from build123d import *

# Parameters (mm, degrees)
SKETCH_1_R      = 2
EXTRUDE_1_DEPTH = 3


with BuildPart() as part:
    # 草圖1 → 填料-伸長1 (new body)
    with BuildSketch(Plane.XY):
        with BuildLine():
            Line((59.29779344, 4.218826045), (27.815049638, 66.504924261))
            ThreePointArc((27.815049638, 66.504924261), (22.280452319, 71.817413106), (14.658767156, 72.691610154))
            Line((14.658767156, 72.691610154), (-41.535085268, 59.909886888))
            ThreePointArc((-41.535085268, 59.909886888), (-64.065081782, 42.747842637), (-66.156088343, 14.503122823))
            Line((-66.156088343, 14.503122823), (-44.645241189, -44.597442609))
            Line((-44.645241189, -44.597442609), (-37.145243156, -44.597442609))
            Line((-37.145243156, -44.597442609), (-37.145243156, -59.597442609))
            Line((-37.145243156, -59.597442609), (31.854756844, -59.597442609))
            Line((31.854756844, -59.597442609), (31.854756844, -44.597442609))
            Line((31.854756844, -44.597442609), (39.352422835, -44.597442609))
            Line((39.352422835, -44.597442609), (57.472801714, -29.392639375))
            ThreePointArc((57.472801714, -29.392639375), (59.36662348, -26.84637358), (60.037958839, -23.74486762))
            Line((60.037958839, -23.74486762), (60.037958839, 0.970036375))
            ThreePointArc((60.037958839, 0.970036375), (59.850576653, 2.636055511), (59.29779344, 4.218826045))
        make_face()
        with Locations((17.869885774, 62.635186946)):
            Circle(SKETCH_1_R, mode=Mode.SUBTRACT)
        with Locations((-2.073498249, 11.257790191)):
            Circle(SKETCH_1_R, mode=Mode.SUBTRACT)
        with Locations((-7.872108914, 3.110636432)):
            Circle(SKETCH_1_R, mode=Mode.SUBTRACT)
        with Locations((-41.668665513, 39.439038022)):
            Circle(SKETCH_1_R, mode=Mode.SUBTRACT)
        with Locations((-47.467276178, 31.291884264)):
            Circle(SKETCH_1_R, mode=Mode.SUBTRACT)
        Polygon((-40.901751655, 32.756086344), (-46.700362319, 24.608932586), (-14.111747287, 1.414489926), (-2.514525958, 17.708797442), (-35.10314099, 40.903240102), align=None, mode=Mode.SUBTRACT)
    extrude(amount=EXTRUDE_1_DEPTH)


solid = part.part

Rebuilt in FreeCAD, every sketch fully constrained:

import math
import FreeCAD as App
import Part
import Sketcher

V = App.Vector
Q = App.Units.Quantity


def add_polygon(sketch, points):
    """Adds a closed chain of lines whose ends are joined by coincident constraints."""
    first, n = sketch.GeometryCount, len(points)
    for a, b in zip(points, points[1:] + points[:1]):
        sketch.addGeometry(Part.LineSegment(App.Vector(*a, 0), App.Vector(*b, 0)), False)
    for i in range(n):
        sketch.addConstraint(Sketcher.Constraint("Coincident", first + i, 2, first + (i + 1) % n, 1))

doc = App.newDocument("Part")
body = doc.addObject("PartDesign::Body", "Body")

sketch1 = body.newObject("Sketcher::SketchObject", "Sketch")
sketch1.AttachmentSupport = (doc.getObject("XY_Plane"), [""])
sketch1.MapMode = "FlatFace"
sketch1.addGeometry(Part.LineSegment(V(59.297793, 4.218826, 0), V(27.81505, 66.504924, 0)), False)
sketch1.addGeometry(Part.ArcOfCircle(Part.Circle(V(17.173933, 60.958156, 0), V(0, 0, 1), 12), math.radians(27.531142), math.radians(102.098745)), False)
sketch1.addGeometry(Part.LineSegment(V(14.658767, 72.69161, 0), V(-41.535085, 59.909887, 0)), False)
sketch1.addGeometry(Part.ArcOfCircle(Part.Circle(V(-33.736693, 26.302818, 0), V(0, 0, 1), 34.5), math.radians(103.064062), math.radians(200)), False)
sketch1.addGeometry(Part.LineSegment(V(-66.156088, 14.503123, 0), V(-44.645241, -44.597443, 0)), False)
sketch1.addGeometry(Part.LineSegment(V(-44.645241, -44.597443, 0), V(-37.145243, -44.597443, 0)), False)
sketch1.addGeometry(Part.LineSegment(V(-37.145243, -44.597443, 0), V(-37.145243, -59.597443, 0)), False)
sketch1.addGeometry(Part.LineSegment(V(-37.145243, -59.597443, 0), V(31.854757, -59.597443, 0)), False)
sketch1.addGeometry(Part.LineSegment(V(31.854757, -59.597443, 0), V(31.854757, -44.597443, 0)), False)
sketch1.addGeometry(Part.LineSegment(V(31.854757, -44.597443, 0), V(39.352423, -44.597443, 0)), False)
sketch1.addGeometry(Part.LineSegment(V(39.352423, -44.597443, 0), V(57.472802, -29.392639, 0)), False)
sketch1.addGeometry(Part.ArcOfCircle(Part.Circle(V(52.537959, -23.744868, 0), V(0, 0, 1), 7.5), math.radians(-48.854075), math.radians(0)), False)
sketch1.addGeometry(Part.LineSegment(V(60.037959, -23.744868, 0), V(60.037959, 0.970036, 0)), False)
sketch1.addGeometry(Part.ArcOfCircle(Part.Circle(V(52.537959, 0.970036, 0), V(0, 0, 1), 7.5), math.radians(0.000002), math.radians(25.669032)), False)
sketch1.addGeometry(Part.Circle(V(-47.467276, 31.291884, 0), V(0, 0, 1), 2), False)
add_polygon(sketch1, [(-46.700362, 24.608933), (-40.901752, 32.756086), (-35.103141, 40.90324), (-2.514526, 17.708797), (-14.111747, 1.41449)])
sketch1.addGeometry(Part.Circle(V(-7.872109, 3.110636, 0), V(0, 0, 1), 2), False)
sketch1.addGeometry(Part.Circle(V(-2.073498, 11.25779, 0), V(0, 0, 1), 2), False)
sketch1.addGeometry(Part.Circle(V(-41.668666, 39.439038, 0), V(0, 0, 1), 2), False)
sketch1.addGeometry(Part.Circle(V(17.869886, 62.635187, 0), V(0, 0, 1), 2), False)
sketch1.addConstraint([
    Sketcher.Constraint("Coincident", 0, 2, 1, 1),
    Sketcher.Constraint("Coincident", 1, 2, 2, 1),
    Sketcher.Constraint("Coincident", 2, 2, 3, 1),
    Sketcher.Constraint("Tangent", 3, 2, 4, 1),
    Sketcher.Constraint("Coincident", 4, 2, 5, 1),
    Sketcher.Constraint("Coincident", 5, 2, 6, 1),
    Sketcher.Constraint("Coincident", 6, 2, 7, 1),
    Sketcher.Constraint("Coincident", 7, 2, 8, 1),
    Sketcher.Constraint("Coincident", 8, 2, 9, 1),
    Sketcher.Constraint("Coincident", 9, 2, 10, 1),
    Sketcher.Constraint("Coincident", 10, 2, 11, 1),
    Sketcher.Constraint("Tangent", 11, 2, 12, 1),
    Sketcher.Constraint("Tangent", 12, 2, 13, 1),
    Sketcher.Constraint("Coincident", 13, 2, 0, 1),
    Sketcher.Constraint("Horizontal", 5),
    Sketcher.Constraint("Vertical", 6),
    Sketcher.Constraint("Horizontal", 7),
    Sketcher.Constraint("Vertical", 8),
    Sketcher.Constraint("Horizontal", 9),
    Sketcher.Constraint("Vertical", 12),
    Sketcher.Constraint("Equal", 11, 13),
    Sketcher.Constraint("Equal", 14, 20),
    Sketcher.Constraint("Equal", 20, 21),
    Sketcher.Constraint("Equal", 21, 22),
    Sketcher.Constraint("Equal", 22, 23),
    Sketcher.Constraint("Parallel", 15, 16),
    Sketcher.Constraint("Perpendicular", 16, 17),
    Sketcher.Constraint("Perpendicular", 17, 18),
    Sketcher.Constraint("Perpendicular", 18, 19),
    Sketcher.Constraint("Horizontal", 5, 2, 8, 2),
    Sketcher.Constraint("Equal", 15, 16),
    Sketcher.Constraint("Diameter", 14, Q("4 mm")),
    Sketcher.Constraint("Radius", 1, Q("12 mm")),
    Sketcher.Constraint("Radius", 3, Q("34.5 mm")),
    Sketcher.Constraint("Radius", 11, Q("7.5 mm")),
    Sketcher.Constraint("DistanceX", 7, 1, 7, 2, Q("69 mm")),
    Sketcher.Constraint("DistanceY", 6, 2, 6, 1, Q("15 mm")),
    Sketcher.Constraint("Angle", 4, Q("-70 deg")),
    Sketcher.Constraint("Angle", 10, Q("40 deg")),
    Sketcher.Constraint("Distance", 15, Q("10 mm")),
    Sketcher.Constraint("Distance", 17, Q("40 mm")),
    Sketcher.Constraint("DistanceX", 5, 1, 5, 2, Q("7.499998 mm")),
    Sketcher.Constraint("DistanceX", 21, 3, -1, 1, Q("2.073498 mm")),
    Sketcher.Constraint("DistanceX", -1, 1, 10, 2, Q("57.472802 mm")),
    Sketcher.Constraint("DistanceY", 13, 3, 20, 3, Q("2.1406 mm")),
    Sketcher.Constraint("DistanceY", 20, 3, 22, 3, Q("36.328402 mm")),
    Sketcher.Constraint("DistanceX", 22, 3, 1, 3, Q("58.842598 mm")),
    Sketcher.Constraint("DistanceX", 7, 2, 11, 3, Q("20.683202 mm")),
    Sketcher.Constraint("DistanceY", 15, 2, 2, 2, Q("27.153801 mm")),
    Sketcher.Constraint("DistanceY", 18, 2, 21, 3, Q("9.8433 mm")),
    Sketcher.Constraint("Distance", 4, Q("62.893508 mm")),
    Sketcher.Constraint("DistanceX", 9, 1, 9, 2, Q("7.497666 mm")),
    Sketcher.Constraint("DistanceY", 12, 1, 12, 2, Q("24.714904 mm")),
    Sketcher.Constraint("DistanceY", -1, 1, 3, 3, Q("26.302818 mm")),
    Sketcher.Constraint("DistanceX", -1, 1, 11, 3, Q("52.537959 mm")),
    Sketcher.Constraint("DistanceX", 20, 3, -1, 1, Q("7.872109 mm")),
    Sketcher.Constraint("DistanceY", -1, 1, 21, 3, Q("11.25779 mm")),
    Sketcher.Constraint("DistanceX", -1, 1, 0, 2, Q("27.81505 mm")),
    Sketcher.Constraint("DistanceY", -1, 1, 1, 2, Q("72.69161 mm")),
    Sketcher.Constraint("DistanceX", 15, 2, -1, 1, Q("40.901752 mm")),
    Sketcher.Constraint("DistanceX", 16, 2, -1, 1, Q("35.103141 mm")),
    Sketcher.Constraint("DistanceY", 3, 3, 1, 3, Q("34.655338 mm")),
    Sketcher.Constraint("DistanceX", 14, 3, 1, 3, Q("64.641209 mm")),
    Sketcher.Constraint("DistanceY", 14, 3, 1, 3, Q("29.666272 mm")),
    Sketcher.Constraint("DistanceX", 20, 3, 1, 3, Q("25.046042 mm")),
    Sketcher.Constraint("DistanceY", 1, 3, 23, 3, Q("1.677031 mm")),
    Sketcher.Constraint("DistanceX", 3, 3, 23, 3, Q("51.606579 mm")),
    Sketcher.Constraint("DistanceY", 12, 2, 13, 2, Q("3.24879 mm")),
])
pad1 = body.newObject("PartDesign::Pad", "Pad")
pad1.Profile = sketch1
pad1.Length = 3

doc.recompute()
